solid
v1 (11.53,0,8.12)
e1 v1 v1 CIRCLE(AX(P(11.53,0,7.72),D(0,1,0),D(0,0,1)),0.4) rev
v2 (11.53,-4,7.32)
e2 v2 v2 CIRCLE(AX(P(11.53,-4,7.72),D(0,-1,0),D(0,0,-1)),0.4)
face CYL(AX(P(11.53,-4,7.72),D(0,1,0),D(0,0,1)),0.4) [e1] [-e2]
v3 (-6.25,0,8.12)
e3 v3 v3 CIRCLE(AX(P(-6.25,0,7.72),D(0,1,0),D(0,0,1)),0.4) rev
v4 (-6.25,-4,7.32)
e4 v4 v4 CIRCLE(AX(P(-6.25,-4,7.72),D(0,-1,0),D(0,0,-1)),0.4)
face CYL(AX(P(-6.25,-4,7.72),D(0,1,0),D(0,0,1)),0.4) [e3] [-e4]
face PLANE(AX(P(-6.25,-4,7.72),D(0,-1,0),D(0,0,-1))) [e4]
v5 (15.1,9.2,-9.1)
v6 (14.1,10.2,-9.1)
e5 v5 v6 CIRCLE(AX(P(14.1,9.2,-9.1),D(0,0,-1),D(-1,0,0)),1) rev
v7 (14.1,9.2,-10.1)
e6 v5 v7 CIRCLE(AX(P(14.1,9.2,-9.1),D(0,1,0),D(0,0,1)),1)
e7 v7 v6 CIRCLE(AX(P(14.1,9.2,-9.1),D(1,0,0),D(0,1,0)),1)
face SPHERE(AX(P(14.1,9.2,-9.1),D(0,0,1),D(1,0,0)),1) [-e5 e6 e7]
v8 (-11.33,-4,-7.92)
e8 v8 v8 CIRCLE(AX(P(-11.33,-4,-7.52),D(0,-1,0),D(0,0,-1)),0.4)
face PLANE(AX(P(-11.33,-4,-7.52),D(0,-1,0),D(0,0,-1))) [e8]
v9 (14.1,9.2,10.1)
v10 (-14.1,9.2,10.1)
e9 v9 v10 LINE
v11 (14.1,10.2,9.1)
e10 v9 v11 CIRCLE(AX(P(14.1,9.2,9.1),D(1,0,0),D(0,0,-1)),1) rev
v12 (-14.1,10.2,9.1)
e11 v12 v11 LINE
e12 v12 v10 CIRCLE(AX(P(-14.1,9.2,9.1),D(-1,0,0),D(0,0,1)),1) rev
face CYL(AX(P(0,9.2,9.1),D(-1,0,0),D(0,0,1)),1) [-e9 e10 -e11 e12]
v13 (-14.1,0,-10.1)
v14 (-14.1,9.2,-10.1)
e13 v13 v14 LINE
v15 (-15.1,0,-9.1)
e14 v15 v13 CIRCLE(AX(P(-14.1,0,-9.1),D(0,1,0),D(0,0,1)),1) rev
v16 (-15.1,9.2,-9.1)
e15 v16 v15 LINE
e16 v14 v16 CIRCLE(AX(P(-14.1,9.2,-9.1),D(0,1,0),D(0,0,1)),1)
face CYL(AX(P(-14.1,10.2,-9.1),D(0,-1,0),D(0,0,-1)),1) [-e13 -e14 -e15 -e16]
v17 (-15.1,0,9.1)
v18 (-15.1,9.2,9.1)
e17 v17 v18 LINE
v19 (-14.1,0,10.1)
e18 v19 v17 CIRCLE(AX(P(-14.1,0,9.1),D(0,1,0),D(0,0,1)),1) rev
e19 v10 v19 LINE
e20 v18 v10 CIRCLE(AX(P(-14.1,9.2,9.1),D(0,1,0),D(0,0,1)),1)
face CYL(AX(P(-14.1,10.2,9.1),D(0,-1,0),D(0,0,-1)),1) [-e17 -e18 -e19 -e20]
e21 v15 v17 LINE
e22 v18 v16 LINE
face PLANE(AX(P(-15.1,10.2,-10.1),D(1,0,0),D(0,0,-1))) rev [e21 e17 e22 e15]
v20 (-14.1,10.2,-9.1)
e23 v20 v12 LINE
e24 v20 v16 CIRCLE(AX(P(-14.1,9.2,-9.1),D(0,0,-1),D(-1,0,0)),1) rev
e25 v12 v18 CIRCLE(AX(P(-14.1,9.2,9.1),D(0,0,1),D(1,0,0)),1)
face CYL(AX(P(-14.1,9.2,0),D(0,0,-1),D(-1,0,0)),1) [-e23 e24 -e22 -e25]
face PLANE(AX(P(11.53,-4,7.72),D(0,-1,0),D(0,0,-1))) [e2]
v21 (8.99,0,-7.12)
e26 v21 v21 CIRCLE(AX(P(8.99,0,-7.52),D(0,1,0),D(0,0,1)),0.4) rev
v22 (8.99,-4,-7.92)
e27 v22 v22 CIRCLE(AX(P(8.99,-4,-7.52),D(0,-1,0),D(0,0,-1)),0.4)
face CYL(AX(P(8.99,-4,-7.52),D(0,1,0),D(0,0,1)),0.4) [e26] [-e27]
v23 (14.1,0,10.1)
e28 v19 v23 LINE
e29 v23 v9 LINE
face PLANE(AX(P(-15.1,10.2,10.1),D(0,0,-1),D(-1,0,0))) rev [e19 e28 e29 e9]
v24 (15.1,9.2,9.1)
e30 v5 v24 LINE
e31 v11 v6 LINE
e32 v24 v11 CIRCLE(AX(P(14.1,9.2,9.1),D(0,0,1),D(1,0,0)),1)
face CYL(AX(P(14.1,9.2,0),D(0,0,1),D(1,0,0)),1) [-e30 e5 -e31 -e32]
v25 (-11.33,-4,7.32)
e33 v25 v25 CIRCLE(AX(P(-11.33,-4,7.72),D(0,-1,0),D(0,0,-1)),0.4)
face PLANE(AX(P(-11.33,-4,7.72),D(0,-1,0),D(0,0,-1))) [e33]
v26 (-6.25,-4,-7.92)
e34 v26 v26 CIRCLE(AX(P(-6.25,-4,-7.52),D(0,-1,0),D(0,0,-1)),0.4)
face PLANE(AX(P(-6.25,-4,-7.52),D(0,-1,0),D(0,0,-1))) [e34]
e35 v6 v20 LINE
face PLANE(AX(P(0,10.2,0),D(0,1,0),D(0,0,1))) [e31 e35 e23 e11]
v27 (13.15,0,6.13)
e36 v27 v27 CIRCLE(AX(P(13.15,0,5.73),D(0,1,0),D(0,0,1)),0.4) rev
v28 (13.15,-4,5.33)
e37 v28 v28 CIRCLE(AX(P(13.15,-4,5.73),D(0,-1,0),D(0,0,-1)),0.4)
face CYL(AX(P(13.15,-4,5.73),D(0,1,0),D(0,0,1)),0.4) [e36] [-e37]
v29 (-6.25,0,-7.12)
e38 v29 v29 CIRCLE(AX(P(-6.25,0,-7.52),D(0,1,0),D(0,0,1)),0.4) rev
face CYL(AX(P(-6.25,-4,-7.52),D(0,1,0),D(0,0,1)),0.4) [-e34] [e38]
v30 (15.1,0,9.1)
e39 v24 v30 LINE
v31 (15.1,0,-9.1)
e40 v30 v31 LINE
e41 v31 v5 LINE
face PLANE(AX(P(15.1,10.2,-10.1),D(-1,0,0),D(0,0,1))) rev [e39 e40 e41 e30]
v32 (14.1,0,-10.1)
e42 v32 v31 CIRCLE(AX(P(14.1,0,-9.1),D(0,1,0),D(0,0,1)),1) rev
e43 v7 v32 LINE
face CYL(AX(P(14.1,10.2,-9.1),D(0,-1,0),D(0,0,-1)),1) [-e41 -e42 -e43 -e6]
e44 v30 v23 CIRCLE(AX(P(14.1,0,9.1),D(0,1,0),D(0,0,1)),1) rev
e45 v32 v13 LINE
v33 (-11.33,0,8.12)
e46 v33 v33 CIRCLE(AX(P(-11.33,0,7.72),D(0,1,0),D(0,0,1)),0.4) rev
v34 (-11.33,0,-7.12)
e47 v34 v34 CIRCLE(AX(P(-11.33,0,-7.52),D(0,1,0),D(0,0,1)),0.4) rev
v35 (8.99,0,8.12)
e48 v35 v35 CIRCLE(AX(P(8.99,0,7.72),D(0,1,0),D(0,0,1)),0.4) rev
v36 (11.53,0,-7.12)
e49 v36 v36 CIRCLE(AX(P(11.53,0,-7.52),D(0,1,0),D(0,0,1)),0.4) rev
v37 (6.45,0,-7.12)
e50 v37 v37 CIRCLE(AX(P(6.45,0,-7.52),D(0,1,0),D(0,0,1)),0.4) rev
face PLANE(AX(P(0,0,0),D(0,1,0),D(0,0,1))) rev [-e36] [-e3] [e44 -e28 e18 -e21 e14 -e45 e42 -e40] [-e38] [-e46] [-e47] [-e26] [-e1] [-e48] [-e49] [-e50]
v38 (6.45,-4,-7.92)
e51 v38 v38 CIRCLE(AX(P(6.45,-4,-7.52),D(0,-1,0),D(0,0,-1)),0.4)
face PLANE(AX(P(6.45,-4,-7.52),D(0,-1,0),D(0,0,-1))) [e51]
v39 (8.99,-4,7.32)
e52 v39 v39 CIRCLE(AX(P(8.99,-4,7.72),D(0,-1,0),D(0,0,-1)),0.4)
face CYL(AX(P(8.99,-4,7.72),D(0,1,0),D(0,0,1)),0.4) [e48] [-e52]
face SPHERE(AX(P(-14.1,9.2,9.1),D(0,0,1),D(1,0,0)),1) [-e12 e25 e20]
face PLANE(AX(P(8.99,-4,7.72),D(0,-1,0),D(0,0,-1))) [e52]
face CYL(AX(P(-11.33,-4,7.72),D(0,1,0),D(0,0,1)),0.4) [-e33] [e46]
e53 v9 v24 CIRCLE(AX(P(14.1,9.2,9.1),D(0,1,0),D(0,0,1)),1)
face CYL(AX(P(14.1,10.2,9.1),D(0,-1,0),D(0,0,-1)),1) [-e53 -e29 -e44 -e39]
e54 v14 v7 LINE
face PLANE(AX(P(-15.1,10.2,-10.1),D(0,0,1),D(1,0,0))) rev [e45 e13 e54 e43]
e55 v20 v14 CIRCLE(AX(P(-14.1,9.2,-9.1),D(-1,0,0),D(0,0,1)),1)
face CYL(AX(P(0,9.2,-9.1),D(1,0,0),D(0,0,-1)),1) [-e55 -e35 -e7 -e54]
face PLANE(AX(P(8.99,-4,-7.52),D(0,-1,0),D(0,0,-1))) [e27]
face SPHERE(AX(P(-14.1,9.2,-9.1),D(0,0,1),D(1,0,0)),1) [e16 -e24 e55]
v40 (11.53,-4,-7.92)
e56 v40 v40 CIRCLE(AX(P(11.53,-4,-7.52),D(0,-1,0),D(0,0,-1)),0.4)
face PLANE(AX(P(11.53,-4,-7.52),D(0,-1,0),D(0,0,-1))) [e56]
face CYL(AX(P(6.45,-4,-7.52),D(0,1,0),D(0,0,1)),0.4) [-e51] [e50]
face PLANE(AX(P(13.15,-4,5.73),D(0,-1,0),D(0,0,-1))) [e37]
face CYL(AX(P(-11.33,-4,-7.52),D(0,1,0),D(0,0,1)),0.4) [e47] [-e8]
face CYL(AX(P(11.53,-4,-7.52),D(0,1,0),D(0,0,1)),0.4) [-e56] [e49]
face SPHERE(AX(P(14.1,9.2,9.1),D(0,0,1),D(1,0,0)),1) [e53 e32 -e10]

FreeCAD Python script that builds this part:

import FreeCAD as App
import Part
import Sketcher


def edges_at(feature, points):
    """Names of the edges that pass closest to the given points."""
    edges = feature.Shape.Edges
    near = lambda p: min(range(len(edges)), key=lambda i: edges[i].distToShape(Part.Vertex(*p))[0])
    return sorted({f"Edge{near(p) + 1}" for p in points})


def add_polygon(sketch, points):
    """Adds a closed chain of lines whose ends are joined by coincident constraints."""
    first, n = sketch.GeometryCount, len(points)
    for a, b in zip(points, points[1:] + points[:1]):
        sketch.addGeometry(Part.LineSegment(App.Vector(*a, 0), App.Vector(*b, 0)), False)
    for i in range(n):
        sketch.addConstraint(Sketcher.Constraint("Coincident", first + i, 2, first + (i + 1) % n, 1))

doc = App.newDocument("Part")
body = doc.addObject("PartDesign::Body", "Body")

# Sketch on XZ plane
sketch1 = body.newObject("Sketcher::SketchObject", "Sketch")
sketch1.AttachmentSupport = (doc.getObject("XZ_Plane"), [""])
sketch1.MapMode = "FlatFace"
add_polygon(sketch1, [(-15, -10), (-15, 10), (15, 10), (15, -10)])  # lines 0-3
sketch1.addConstraint(Sketcher.Constraint("Vertical", 0))
sketch1.addConstraint(Sketcher.Constraint("Horizontal", 1))
sketch1.addConstraint(Sketcher.Constraint("Vertical", 2))
sketch1.addConstraint(Sketcher.Constraint("Horizontal", 3))
sketch1.addConstraint(Sketcher.Constraint("Symmetric", 0, 2, 2, 2, -1, 1))
sketch1.addConstraint(Sketcher.Constraint("DistanceX", 1, 1, 1, 2, 30.2))
sketch1.addConstraint(Sketcher.Constraint("DistanceY", 0, 1, 0, 2, 20.2))
pad1 = body.newObject("PartDesign::Pad", "Pad")
pad1.Profile = sketch1
pad1.Length = 10.2
pad1.Reversed = True
doc.recompute()

fillet = body.newObject("PartDesign::Fillet", "Fillet")
fillet.Base = (pad1, edges_at(pad1, [
    (-15.1, 10.2, 0),
    (0, 10.2, 10.1),
    (15.1, 10.2, 0),
    (0, 10.2, -10.1),
    (15.1, 5.1, 10.1),
    (-15.1, 5.1, 10.1),
    (-15.1, 5.1, -10.1),
    (15.1, 5.1, -10.1),
]))
fillet.Radius = 1

# Sketch on XZ plane
sketch2 = body.newObject("Sketcher::SketchObject", "Sketch001")
sketch2.AttachmentSupport = (doc.getObject("XZ_Plane"), [""])
sketch2.MapMode = "FlatFace"
sketch2.addGeometry(Part.Circle(App.Vector(11.53, 7.72, 0), App.Vector(0, 0, 1), 0.4), False)
sketch2.addGeometry(Part.Circle(App.Vector(13.15, 5.73, 0), App.Vector(0, 0, 1), 0.4), False)
sketch2.addGeometry(Part.Circle(App.Vector(8.99, 7.72, 0), App.Vector(0, 0, 1), 0.4), False)
sketch2.addGeometry(Part.Circle(App.Vector(6.45, -7.52, 0), App.Vector(0, 0, 1), 0.4), False)
sketch2.addGeometry(Part.Circle(App.Vector(-6.25, 7.72, 0), App.Vector(0, 0, 1), 0.4), False)
sketch2.addGeometry(Part.Circle(App.Vector(-11.33, 7.72, 0), App.Vector(0, 0, 1), 0.4), False)
sketch2.addGeometry(Part.Circle(App.Vector(-11.33, -7.52, 0), App.Vector(0, 0, 1), 0.4), False)
sketch2.addGeometry(Part.Circle(App.Vector(-6.25, -7.52, 0), App.Vector(0, 0, 1), 0.4), False)
sketch2.addGeometry(Part.Circle(App.Vector(8.99, -7.52, 0), App.Vector(0, 0, 1), 0.4), False)
sketch2.addGeometry(Part.Circle(App.Vector(11.53, -7.52, 0), App.Vector(0, 0, 1), 0.4), False)
sketch2.addConstraint(Sketcher.Constraint("Equal", 0, 1))
sketch2.addConstraint(Sketcher.Constraint("Equal", 1, 2))
sketch2.addConstraint(Sketcher.Constraint("Equal", 2, 3))
sketch2.addConstraint(Sketcher.Constraint("Equal", 3, 4))
sketch2.addConstraint(Sketcher.Constraint("Equal", 4, 5))
sketch2.addConstraint(Sketcher.Constraint("Equal", 5, 6))
sketch2.addConstraint(Sketcher.Constraint("Equal", 6, 7))
sketch2.addConstraint(Sketcher.Constraint("Equal", 7, 8))
sketch2.addConstraint(Sketcher.Constraint("Equal", 8, 9))
sketch2.addConstraint(Sketcher.Constraint("Horizontal", 0, 3, 2, 3))
sketch2.addConstraint(Sketcher.Constraint("Horizontal", 2, 3, 4, 3))
sketch2.addConstraint(Sketcher.Constraint("Horizontal", 4, 3, 5, 3))
sketch2.addConstraint(Sketcher.Constraint("Horizontal", 3, 3, 6, 3))
sketch2.addConstraint(Sketcher.Constraint("Horizontal", 6, 3, 7, 3))
sketch2.addConstraint(Sketcher.Constraint("Horizontal", 7, 3, 8, 3))
sketch2.addConstraint(Sketcher.Constraint("Horizontal", 8, 3, 9, 3))
sketch2.addConstraint(Sketcher.Constraint("Vertical", 5, 3, 6, 3))
sketch2.addConstraint(Sketcher.Constraint("Vertical", 4, 3, 7, 3))
sketch2.addConstraint(Sketcher.Constraint("Vertical", 2, 3, 8, 3))
sketch2.addConstraint(Sketcher.Constraint("Vertical", 0, 3, 9, 3))
sketch2.addConstraint(Sketcher.Constraint("Diameter", 0, 0.8))
sketch2.addConstraint(Sketcher.Constraint("DistanceX", 3, 3, 1, 3, 6.7))
sketch2.addConstraint(Sketcher.Constraint("DistanceX", 4, 3, 1, 3, 19.4))
sketch2.addConstraint(Sketcher.Constraint("DistanceX", -1, 1, 0, 3, 11.53))
sketch2.addConstraint(Sketcher.Constraint("DistanceY", -1, 1, 0, 3, 7.72))
sketch2.addConstraint(Sketcher.Constraint("DistanceX", -1, 1, 1, 3, 13.15))
sketch2.addConstraint(Sketcher.Constraint("DistanceY", -1, 1, 1, 3, 5.73))
sketch2.addConstraint(Sketcher.Constraint("DistanceX", -1, 1, 2, 3, 8.99))
sketch2.addConstraint(Sketcher.Constraint("DistanceY", 3, 3, -1, 1, 7.52))
sketch2.addConstraint(Sketcher.Constraint("DistanceX", 5, 3, -1, 1, 11.33))
pad2 = body.newObject("PartDesign::Pad", "Pad001")
pad2.Profile = sketch2
pad2.Length = 4

doc.recompute()
